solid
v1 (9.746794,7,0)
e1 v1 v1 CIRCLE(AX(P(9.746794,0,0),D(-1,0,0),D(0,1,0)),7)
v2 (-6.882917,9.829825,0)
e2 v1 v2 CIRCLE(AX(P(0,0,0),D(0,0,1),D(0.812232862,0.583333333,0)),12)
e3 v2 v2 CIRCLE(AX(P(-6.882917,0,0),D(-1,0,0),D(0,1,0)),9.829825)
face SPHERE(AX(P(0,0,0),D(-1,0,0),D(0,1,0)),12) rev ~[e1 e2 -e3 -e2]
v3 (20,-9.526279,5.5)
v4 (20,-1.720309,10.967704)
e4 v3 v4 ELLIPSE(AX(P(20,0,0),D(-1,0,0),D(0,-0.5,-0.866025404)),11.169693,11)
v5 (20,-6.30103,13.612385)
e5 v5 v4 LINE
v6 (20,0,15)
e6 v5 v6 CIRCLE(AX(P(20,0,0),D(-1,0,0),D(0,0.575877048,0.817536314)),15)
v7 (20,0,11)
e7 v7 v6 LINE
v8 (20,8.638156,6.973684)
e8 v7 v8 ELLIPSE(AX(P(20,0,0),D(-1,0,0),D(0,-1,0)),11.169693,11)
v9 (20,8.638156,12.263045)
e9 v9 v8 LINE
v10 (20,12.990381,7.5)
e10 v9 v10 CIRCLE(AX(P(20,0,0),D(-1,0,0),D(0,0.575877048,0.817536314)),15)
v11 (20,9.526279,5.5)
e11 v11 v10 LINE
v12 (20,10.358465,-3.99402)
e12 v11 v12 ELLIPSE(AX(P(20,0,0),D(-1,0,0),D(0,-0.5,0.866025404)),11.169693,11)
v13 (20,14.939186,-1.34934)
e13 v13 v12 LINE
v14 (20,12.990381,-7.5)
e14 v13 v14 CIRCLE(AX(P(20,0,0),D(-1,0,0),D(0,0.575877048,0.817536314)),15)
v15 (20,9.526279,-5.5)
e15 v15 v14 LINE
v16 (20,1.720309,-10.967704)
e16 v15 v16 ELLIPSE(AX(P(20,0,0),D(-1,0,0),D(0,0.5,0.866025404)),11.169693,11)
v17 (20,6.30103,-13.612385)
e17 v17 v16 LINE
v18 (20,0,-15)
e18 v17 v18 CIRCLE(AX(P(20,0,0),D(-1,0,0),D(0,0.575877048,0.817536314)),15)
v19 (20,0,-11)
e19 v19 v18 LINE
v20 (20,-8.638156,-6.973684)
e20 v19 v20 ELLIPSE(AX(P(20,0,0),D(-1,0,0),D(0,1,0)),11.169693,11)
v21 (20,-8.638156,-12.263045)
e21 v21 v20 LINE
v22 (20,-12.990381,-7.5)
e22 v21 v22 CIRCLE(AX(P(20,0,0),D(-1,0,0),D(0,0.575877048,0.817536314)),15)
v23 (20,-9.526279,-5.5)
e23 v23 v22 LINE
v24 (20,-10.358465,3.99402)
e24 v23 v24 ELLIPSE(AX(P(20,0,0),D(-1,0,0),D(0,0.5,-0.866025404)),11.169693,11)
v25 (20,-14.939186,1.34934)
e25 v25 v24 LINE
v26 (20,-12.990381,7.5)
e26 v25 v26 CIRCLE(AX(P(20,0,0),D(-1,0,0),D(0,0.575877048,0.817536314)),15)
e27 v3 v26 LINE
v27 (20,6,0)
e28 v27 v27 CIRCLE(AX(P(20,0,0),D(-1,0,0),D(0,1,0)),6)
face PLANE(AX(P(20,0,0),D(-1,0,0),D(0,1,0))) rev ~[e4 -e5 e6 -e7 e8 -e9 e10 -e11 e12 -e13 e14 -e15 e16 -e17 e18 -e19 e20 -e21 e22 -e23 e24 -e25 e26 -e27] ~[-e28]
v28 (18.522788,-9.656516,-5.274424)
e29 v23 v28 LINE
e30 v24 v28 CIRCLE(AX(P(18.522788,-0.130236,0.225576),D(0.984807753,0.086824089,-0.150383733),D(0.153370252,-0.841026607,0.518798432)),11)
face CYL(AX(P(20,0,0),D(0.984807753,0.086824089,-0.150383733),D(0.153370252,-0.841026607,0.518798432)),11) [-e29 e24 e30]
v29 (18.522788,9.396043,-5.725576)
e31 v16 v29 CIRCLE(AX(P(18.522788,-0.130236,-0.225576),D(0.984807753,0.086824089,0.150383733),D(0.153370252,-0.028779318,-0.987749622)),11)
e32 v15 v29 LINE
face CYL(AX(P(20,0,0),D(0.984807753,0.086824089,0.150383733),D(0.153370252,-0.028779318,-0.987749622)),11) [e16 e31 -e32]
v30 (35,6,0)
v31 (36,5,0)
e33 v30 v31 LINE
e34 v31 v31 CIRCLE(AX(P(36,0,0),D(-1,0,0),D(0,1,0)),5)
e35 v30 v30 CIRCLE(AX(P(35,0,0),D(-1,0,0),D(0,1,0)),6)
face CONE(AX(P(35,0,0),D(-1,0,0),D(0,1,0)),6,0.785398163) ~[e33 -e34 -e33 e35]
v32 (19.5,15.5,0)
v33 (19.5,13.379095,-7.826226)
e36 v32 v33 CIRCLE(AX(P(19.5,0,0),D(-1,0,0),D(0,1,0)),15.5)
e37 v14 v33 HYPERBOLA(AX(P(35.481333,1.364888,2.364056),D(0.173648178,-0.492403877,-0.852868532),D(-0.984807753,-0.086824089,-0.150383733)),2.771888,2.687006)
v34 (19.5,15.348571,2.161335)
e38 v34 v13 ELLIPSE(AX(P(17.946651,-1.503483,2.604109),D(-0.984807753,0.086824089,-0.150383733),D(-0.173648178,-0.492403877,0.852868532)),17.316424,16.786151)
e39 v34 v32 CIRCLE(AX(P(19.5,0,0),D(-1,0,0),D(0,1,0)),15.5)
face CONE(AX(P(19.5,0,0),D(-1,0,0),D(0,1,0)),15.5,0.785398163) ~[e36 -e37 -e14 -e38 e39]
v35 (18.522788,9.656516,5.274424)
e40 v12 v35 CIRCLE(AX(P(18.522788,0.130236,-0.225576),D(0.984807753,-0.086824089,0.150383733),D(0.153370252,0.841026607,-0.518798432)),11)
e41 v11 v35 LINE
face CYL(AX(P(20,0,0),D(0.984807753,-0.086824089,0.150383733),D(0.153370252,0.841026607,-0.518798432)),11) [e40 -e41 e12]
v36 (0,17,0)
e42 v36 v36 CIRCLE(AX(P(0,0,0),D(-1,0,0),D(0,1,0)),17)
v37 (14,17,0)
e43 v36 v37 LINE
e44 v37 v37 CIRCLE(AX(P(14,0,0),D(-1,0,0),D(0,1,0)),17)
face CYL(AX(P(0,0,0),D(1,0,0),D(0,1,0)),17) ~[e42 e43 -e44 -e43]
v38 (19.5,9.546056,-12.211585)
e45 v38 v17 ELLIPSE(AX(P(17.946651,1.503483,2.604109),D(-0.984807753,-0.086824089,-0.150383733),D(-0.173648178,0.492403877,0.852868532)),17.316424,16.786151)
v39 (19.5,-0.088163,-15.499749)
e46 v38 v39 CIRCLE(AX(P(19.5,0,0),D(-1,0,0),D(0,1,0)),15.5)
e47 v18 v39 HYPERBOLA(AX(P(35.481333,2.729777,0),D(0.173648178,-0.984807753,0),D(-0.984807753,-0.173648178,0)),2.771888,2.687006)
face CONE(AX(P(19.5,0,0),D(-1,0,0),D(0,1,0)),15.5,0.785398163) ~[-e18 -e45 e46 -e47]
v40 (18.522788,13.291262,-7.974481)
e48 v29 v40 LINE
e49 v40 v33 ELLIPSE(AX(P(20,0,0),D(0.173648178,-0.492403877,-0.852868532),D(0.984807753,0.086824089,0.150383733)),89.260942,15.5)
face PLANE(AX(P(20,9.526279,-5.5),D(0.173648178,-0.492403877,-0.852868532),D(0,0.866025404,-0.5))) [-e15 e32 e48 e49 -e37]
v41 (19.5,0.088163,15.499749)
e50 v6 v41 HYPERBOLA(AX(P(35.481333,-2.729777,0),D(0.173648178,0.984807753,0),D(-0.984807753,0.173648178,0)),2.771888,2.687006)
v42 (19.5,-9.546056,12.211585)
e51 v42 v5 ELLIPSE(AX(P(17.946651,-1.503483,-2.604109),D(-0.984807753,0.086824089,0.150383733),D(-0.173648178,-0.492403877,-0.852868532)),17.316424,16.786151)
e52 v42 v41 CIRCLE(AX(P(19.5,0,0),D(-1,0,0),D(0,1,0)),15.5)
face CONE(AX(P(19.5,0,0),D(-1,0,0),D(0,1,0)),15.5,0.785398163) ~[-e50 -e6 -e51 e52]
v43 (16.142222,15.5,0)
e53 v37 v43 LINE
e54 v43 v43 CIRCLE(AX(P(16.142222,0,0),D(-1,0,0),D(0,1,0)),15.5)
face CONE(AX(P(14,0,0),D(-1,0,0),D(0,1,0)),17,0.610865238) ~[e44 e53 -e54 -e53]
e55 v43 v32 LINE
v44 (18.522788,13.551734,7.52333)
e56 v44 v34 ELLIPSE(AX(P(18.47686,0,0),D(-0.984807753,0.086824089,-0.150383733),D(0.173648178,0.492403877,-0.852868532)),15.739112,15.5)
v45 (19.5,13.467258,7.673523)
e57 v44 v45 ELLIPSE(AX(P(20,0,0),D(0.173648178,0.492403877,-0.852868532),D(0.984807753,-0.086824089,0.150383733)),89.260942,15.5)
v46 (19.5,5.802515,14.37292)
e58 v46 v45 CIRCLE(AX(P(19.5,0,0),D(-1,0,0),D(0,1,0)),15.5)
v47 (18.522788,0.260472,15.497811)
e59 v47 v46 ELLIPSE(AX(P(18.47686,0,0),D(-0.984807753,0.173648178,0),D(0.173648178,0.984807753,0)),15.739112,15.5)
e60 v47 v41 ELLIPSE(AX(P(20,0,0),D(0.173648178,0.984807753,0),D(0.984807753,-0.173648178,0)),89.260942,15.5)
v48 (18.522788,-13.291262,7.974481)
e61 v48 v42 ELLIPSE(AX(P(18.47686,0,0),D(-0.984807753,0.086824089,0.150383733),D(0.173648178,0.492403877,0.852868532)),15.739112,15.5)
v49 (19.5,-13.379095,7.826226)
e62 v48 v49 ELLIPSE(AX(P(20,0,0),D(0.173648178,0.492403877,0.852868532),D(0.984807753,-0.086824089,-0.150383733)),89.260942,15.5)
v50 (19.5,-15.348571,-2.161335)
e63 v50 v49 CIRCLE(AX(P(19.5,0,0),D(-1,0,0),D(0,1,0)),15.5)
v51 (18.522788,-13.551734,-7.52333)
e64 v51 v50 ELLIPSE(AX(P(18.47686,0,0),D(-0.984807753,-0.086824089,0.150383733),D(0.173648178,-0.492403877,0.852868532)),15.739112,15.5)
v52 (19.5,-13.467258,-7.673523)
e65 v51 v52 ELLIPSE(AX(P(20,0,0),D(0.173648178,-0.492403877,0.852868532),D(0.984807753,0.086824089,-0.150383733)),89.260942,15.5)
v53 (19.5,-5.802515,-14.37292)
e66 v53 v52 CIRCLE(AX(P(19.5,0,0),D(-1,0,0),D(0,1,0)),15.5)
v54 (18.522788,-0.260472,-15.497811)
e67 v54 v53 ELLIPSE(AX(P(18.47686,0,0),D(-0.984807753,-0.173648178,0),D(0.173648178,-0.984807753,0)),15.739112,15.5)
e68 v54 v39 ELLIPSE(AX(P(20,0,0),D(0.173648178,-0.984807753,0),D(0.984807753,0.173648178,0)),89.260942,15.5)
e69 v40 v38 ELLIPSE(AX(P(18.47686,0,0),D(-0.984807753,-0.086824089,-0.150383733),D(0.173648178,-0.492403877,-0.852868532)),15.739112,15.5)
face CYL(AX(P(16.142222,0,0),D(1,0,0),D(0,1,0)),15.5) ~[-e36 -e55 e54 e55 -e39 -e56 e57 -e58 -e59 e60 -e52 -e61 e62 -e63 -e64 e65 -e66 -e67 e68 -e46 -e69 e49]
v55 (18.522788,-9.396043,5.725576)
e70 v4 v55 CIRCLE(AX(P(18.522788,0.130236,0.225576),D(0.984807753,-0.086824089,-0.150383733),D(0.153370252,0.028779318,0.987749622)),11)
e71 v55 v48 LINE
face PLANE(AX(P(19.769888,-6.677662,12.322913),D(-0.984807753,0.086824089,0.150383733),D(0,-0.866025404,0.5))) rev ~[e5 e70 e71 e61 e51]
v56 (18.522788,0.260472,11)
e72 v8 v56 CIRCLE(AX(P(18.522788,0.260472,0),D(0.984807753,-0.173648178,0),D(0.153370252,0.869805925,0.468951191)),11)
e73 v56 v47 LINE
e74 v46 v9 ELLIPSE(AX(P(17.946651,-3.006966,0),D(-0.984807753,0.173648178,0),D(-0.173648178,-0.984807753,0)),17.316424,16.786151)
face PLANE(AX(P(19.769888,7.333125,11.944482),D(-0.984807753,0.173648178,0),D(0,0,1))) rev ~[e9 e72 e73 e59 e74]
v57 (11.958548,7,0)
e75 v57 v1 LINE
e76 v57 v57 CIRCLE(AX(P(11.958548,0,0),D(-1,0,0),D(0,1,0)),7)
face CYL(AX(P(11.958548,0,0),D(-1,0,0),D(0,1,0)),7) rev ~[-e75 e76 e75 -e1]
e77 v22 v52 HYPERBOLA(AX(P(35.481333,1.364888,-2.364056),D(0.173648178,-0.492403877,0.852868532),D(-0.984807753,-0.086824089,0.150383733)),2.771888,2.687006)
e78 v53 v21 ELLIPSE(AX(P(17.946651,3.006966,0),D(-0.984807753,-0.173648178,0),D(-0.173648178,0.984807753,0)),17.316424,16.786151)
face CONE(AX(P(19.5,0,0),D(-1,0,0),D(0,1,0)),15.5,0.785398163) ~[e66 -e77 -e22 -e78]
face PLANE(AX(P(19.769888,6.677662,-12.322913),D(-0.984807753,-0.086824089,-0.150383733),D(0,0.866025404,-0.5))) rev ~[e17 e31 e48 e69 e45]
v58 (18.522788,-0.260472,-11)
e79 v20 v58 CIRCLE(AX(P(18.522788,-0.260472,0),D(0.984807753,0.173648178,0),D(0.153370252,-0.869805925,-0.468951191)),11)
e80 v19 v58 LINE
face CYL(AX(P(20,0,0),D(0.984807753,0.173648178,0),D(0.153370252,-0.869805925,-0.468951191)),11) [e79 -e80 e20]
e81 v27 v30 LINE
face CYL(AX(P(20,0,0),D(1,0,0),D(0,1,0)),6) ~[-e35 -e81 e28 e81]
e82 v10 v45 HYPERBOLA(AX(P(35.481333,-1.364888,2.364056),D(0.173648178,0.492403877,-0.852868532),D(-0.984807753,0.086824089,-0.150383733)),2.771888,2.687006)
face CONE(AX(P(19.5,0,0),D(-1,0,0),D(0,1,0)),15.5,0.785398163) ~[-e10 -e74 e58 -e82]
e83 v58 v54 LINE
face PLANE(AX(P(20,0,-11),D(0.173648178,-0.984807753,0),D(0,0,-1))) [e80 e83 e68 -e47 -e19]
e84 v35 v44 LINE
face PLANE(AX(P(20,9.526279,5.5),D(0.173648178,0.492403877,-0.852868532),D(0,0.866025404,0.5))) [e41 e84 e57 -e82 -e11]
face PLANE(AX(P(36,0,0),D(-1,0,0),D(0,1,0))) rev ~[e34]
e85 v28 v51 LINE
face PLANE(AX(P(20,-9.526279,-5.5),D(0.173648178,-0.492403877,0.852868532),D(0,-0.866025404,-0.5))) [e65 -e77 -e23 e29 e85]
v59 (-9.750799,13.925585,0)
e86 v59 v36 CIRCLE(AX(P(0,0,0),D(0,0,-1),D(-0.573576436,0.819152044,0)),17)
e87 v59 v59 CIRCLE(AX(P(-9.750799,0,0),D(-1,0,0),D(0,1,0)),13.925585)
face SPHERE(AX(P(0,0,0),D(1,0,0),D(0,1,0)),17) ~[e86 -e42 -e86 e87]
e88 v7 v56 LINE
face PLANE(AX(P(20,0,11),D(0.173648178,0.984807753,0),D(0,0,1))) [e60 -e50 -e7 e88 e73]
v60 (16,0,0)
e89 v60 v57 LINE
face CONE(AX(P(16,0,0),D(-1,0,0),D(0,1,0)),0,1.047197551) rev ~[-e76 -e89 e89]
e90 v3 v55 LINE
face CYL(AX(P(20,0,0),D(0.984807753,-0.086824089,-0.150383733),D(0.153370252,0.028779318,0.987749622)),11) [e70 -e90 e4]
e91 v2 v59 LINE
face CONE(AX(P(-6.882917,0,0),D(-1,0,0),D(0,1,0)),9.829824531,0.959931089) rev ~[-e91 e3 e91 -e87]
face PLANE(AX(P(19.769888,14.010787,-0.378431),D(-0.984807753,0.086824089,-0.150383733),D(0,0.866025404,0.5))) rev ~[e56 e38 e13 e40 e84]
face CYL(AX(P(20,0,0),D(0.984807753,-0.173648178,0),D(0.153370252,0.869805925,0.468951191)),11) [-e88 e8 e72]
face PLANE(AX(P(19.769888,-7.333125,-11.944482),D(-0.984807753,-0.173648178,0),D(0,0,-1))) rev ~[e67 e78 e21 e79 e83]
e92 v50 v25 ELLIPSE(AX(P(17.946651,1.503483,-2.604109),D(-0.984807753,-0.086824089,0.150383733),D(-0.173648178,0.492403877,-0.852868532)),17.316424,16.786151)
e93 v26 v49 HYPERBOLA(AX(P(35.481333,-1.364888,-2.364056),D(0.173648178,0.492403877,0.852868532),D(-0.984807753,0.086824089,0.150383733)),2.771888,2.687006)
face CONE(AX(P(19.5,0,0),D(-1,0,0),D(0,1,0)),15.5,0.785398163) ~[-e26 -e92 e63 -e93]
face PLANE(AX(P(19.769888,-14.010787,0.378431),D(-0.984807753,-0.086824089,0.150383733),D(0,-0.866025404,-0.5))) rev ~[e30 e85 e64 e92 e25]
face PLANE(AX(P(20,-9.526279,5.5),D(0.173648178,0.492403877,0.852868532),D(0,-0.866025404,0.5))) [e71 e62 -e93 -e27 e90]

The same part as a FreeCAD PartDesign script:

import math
import FreeCAD as App
import Part
import Sketcher
Q = App.Units.Quantity

doc = App.newDocument("Part")
body = doc.addObject("PartDesign::Body", "Body")

sketch1 = body.newObject("Sketcher::SketchObject", "Sketch")
sketch1.AttachmentSupport = (doc.getObject("XY_Plane"), [""])
sketch1.MapMode = "FlatFace"
sketch1.addGeometry([
    Part.LineSegment(App.Vector(14, 17, 0), App.Vector(0, 17, 0)),
    Part.ArcOfCircle(Part.Circle(App.Vector(0, 0, 0), App.Vector(0, 0, 1), 17), math.radians(90), math.radians(125)),
    Part.LineSegment(App.Vector(-9.750799, 13.925585, 0), App.Vector(-6.882917, 9.829825, 0)),
    Part.ArcOfCircle(Part.Circle(App.Vector(0, 0, 0), App.Vector(0, 0, 1), 12), math.radians(35.685335), math.radians(125)),
    Part.LineSegment(App.Vector(9.746794, 7, 0), App.Vector(11.958548, 7, 0)),
    Part.LineSegment(App.Vector(11.958548, 7, 0), App.Vector(16, 0, 0)),
    Part.LineSegment(App.Vector(16, 0, 0), App.Vector(36, 0, 0)),
    Part.LineSegment(App.Vector(36, 0, 0), App.Vector(36, 5, 0)),
    Part.LineSegment(App.Vector(36, 5, 0), App.Vector(35, 6, 0)),
    Part.LineSegment(App.Vector(35, 6, 0), App.Vector(20, 6, 0)),
    Part.LineSegment(App.Vector(20, 6, 0), App.Vector(20, 15, 0)),
    Part.LineSegment(App.Vector(20, 15, 0), App.Vector(19.5, 15.5, 0)),
    Part.LineSegment(App.Vector(19.5, 15.5, 0), App.Vector(16.142222, 15.5, 0)),
    Part.LineSegment(App.Vector(16.142222, 15.5, 0), App.Vector(14, 17, 0)),
], False)
sketch1.addConstraint([
    Sketcher.Constraint("Tangent", 0, 2, 1, 1),
    Sketcher.Constraint("Coincident", 1, 2, 2, 1),
    Sketcher.Constraint("Coincident", 2, 2, 3, 2),
    Sketcher.Constraint("Coincident", 3, 1, 4, 1),
    Sketcher.Constraint("Coincident", 4, 2, 5, 1),
    Sketcher.Constraint("Coincident", 5, 2, 6, 1),
    Sketcher.Constraint("Coincident", 6, 2, 7, 1),
    Sketcher.Constraint("Coincident", 7, 2, 8, 1),
    Sketcher.Constraint("Coincident", 8, 2, 9, 1),
    Sketcher.Constraint("Coincident", 9, 2, 10, 1),
    Sketcher.Constraint("Coincident", 10, 2, 11, 1),
    Sketcher.Constraint("Coincident", 11, 2, 12, 1),
    Sketcher.Constraint("Coincident", 12, 2, 13, 1),
    Sketcher.Constraint("Coincident", 13, 2, 0, 1),
    Sketcher.Constraint("Horizontal", 0),
    Sketcher.Constraint("Horizontal", 4),
    Sketcher.Constraint("Horizontal", 6),
    Sketcher.Constraint("Vertical", 7),
    Sketcher.Constraint("Horizontal", 9),
    Sketcher.Constraint("Vertical", 10),
    Sketcher.Constraint("Horizontal", 12),
    Sketcher.Constraint("Coincident", 1, 3, -1, 1),
    Sketcher.Constraint("Coincident", 3, 3, -1, 1),
    Sketcher.Constraint("PointOnObject", 5, 2, -1),
    Sketcher.Constraint("Parallel", 8, 11),
    Sketcher.Constraint("Radius", 1, Q("17 mm")),
    Sketcher.Constraint("Radius", 3, Q("12 mm")),
    Sketcher.Constraint("DistanceX", 0, 2, 0, 1, Q("14 mm")),
    Sketcher.Constraint("DistanceX", 6, 1, 6, 2, Q("20 mm")),
    Sketcher.Constraint("DistanceX", 9, 2, 9, 1, Q("15 mm")),
    Sketcher.Constraint("DistanceY", 7, 1, 7, 2, Q("5 mm")),
    Sketcher.Constraint("DistanceY", 10, 1, 10, 2, Q("9 mm")),
    Sketcher.Constraint("Angle", 2, Q("-55 deg")),
    Sketcher.Constraint("Angle", 5, Q("-60 deg")),
    Sketcher.Constraint("Angle", 8, Q("135 deg")),
    Sketcher.Constraint("Angle", 13, Q("145 deg")),
    Sketcher.Constraint("DistanceY", -1, 1, 3, 1, Q("7 mm")),
    Sketcher.Constraint("DistanceX", -1, 1, 5, 2, Q("16 mm")),
    Sketcher.Constraint("DistanceX", -1, 1, 8, 2, Q("35 mm")),
    Sketcher.Constraint("DistanceX", -1, 1, 11, 2, Q("19.5 mm")),
    Sketcher.Constraint("DistanceX", 1, 2, -1, 1, Q("9.750799 mm")),
])
revolution = body.newObject("PartDesign::Revolution", "Revolution")
revolution.Profile = sketch1
revolution.ReferenceAxis = (sketch1, ["H_Axis"])
revolution.Angle = 360

sketch2 = body.newObject("Sketcher::SketchObject", "Sketch001")
sketch2.Placement = App.Placement(App.Vector(19.396926, -3.420201, 0), App.Rotation(App.Vector(0, 0, -1), App.Vector(0.173648178, 0.984807753, 0), App.Vector(0.984807753, -0.173648178, 0), "ZXY"))
sketch2.addGeometry([
    Part.LineSegment(App.Vector(-18.209948, 3.472964, 0), App.Vector(-11, 3.472964, 0)),
    Part.ArcOfCircle(Part.Circle(App.Vector(0, 3.472964, 0), App.Vector(0, 0, 1), 11), math.radians(117.966238), math.radians(180)),
    Part.LineSegment(App.Vector(-5.158463, 13.188428, 0), App.Vector(-8.539577, 19.556428, 0)),
    Part.ArcOfCircle(Part.Circle(App.Vector(0, 3.472964, 0), App.Vector(0, 0, 1), 18.209948), math.radians(117.966238), math.radians(180)),
], False)
sketch2.addConstraint([
    Sketcher.Constraint("Coincident", 0, 2, 1, 2),
    Sketcher.Constraint("Coincident", 1, 1, 2, 1),
    Sketcher.Constraint("Coincident", 2, 2, 3, 1),
    Sketcher.Constraint("Coincident", 3, 2, 0, 1),
    Sketcher.Constraint("Horizontal", 0),
    Sketcher.Constraint("Coincident", 3, 3, 1, 3),
    Sketcher.Constraint("PointOnObject", 1, 3, -2),
    Sketcher.Constraint("Horizontal", 3, 3, 0, 2),
    Sketcher.Constraint("Radius", 1, Q("11 mm")),
    Sketcher.Constraint("Radius", 3, Q("18.209948 mm")),
    Sketcher.Constraint("DistanceY", 1, 1, 2, 2, Q("6.368 mm")),
    Sketcher.Constraint("DistanceY", -1, 1, 1, 1, Q("13.188428 mm")),
    Sketcher.Constraint("DistanceX", 3, 2, 2, 2, Q("9.670371 mm")),
])
pocket1 = body.newObject("PartDesign::Pocket", "Pocket")
pocket1.Profile = sketch2
pocket1.Length = 1.5
doc.recompute()

polarpattern = body.newObject("PartDesign::PolarPattern", "PolarPattern")
polarpattern.Originals = [pocket1]
polarpattern.Axis = (doc.getObject("X_Axis"), [""])
polarpattern.Angle = 360
polarpattern.Occurrences = 6
body.Tip = polarpattern

doc.recompute()
